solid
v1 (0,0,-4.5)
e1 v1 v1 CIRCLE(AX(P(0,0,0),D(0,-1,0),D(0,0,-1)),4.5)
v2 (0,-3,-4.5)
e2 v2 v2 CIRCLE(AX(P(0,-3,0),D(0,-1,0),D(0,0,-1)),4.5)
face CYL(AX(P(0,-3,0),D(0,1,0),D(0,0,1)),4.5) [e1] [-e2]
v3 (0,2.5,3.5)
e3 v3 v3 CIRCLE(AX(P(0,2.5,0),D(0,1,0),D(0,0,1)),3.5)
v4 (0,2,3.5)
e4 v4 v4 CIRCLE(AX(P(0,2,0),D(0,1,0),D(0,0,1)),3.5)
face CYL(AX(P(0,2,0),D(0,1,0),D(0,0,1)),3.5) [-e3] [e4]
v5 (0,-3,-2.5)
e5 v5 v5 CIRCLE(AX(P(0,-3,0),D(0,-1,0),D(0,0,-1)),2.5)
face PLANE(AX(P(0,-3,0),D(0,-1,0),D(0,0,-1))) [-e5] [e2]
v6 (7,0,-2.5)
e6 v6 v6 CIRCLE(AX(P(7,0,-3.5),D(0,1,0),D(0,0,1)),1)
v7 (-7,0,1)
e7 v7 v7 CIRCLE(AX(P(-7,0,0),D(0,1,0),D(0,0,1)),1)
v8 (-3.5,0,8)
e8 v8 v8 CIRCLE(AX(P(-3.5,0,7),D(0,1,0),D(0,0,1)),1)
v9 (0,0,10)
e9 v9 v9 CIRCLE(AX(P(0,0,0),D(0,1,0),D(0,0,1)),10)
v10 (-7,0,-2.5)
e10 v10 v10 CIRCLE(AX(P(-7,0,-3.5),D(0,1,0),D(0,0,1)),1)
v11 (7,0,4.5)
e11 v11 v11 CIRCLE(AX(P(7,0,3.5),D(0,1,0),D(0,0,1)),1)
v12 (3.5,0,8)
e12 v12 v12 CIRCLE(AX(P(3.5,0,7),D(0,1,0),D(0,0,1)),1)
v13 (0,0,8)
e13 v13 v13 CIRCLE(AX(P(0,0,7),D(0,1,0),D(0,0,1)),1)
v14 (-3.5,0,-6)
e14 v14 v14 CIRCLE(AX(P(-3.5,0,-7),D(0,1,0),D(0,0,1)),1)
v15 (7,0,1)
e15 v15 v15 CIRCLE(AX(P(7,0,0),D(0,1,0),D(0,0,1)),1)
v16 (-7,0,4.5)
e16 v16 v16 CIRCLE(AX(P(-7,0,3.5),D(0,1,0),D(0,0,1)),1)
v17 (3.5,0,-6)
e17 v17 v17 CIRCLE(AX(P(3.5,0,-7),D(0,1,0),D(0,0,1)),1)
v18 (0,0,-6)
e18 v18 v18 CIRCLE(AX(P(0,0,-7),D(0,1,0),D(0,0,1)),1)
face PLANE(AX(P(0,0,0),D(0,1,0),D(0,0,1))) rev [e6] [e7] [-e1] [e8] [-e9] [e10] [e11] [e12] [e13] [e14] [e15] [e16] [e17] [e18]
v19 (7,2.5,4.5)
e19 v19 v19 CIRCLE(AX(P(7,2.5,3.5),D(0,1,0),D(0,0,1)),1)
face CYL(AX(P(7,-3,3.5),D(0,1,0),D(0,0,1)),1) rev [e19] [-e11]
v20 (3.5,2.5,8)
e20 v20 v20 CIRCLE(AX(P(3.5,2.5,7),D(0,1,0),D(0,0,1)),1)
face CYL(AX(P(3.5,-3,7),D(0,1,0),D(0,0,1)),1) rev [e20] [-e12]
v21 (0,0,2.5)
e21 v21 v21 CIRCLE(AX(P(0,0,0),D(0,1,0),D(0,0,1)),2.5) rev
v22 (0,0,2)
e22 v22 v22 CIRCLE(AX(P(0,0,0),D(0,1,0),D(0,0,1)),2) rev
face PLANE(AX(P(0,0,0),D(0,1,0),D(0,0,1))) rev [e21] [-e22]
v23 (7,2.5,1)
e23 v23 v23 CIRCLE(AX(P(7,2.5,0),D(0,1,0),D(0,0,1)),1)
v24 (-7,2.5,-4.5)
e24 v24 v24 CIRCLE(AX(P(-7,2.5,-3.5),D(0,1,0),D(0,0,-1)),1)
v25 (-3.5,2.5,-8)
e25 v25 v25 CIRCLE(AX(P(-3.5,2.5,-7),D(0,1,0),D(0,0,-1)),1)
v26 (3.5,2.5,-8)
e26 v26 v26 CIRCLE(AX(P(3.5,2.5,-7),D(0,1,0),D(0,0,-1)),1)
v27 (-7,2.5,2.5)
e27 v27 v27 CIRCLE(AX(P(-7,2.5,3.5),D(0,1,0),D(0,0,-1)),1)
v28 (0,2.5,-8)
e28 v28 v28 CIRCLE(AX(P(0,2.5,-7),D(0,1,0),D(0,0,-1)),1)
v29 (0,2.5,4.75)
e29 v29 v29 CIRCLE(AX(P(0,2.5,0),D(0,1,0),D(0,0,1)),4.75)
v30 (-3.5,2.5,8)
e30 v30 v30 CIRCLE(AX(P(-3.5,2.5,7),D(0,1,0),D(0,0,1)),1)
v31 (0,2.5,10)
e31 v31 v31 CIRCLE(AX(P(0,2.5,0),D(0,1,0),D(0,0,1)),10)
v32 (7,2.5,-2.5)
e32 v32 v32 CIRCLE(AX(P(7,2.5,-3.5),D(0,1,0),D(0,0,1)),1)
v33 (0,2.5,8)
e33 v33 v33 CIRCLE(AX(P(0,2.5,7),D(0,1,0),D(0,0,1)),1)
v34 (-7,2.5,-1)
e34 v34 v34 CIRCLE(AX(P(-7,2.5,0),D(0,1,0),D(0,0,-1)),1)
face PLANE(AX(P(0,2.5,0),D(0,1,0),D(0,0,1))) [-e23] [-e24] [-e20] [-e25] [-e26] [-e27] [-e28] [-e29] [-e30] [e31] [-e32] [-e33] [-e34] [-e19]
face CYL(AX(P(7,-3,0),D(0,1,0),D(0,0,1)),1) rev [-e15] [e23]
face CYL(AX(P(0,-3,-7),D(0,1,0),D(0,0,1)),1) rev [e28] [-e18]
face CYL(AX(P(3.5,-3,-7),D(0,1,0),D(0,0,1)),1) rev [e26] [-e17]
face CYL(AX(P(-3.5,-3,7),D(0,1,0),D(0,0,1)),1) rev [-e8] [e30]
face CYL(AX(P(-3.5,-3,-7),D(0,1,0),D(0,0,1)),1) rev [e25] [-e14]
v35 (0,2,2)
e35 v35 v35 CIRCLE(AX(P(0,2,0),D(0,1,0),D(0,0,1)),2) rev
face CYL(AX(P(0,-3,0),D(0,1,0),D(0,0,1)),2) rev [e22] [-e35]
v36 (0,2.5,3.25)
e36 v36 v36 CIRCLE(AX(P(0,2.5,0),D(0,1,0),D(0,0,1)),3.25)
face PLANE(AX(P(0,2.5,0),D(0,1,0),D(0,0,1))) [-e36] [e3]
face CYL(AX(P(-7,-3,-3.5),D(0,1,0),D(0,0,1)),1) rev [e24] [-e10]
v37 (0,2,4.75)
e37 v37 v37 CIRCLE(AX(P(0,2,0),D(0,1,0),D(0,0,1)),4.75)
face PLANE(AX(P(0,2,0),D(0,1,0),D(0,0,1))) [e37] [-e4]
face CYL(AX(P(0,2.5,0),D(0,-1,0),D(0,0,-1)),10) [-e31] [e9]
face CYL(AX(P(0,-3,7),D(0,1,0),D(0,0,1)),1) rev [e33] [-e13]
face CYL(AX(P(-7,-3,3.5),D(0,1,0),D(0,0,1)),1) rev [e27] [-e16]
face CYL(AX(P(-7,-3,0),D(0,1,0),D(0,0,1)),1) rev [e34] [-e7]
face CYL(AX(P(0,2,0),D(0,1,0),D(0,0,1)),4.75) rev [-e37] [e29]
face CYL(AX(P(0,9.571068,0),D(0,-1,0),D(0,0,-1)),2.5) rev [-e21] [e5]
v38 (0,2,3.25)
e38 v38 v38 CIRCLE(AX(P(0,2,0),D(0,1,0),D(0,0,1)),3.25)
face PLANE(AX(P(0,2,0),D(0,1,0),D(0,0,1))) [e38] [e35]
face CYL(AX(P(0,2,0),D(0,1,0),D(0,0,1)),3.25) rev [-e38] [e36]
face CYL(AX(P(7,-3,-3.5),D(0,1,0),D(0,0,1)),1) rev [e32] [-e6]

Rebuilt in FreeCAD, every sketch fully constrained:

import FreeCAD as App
import Part
import Sketcher
from FreeCAD import Vector
Q = App.Units.Quantity

doc = App.newDocument("Part")
params = doc.addObject("Spreadsheet::Sheet", "Params")
for row, (alias, value) in enumerate([
    ("sketch1_diameter", "20 mm"),
    ("pad1_length", "2.5 mm"),
    ("sketch2_diameter", "9 mm"),
    ("pad2_length", "3 mm"),
    ("sketch3_diameter", "4 mm"),
    ("sketch4_diameter", "5 mm"),
    ("pocket2_length", "3 mm"),
    ("sketch5_diameter", "7 mm"),
    ("sketch5_diameter2", "4 mm"),
    ("sketch5_diameter3", "9.5 mm"),
    ("sketch5_diameter4", "6.5 mm"),
    ("pocket3_length", "0.5 mm"),
    ("sketch6_diameter", "2 mm"),
], start=1):
    params.set(f"A{row}", alias)
    params.set(f"B{row}", "=" + value)
    params.setAlias(f"B{row}", alias)

body = doc.addObject("PartDesign::Body", "Body")

# Sketch on XZ plane
sketch1 = body.newObject("Sketcher::SketchObject", "Sketch")
sketch1.AttachmentSupport = (doc.getObject("XZ_Plane"), [""])
sketch1.MapMode = "FlatFace"
sketch1.addGeometry(Part.Circle(Vector(0, 0, 0), Vector(0, 0, 1), 10), False)
sketch1.addConstraint(Sketcher.Constraint("Coincident", 0, 3, -1, 1))
sketch1.addConstraint(Sketcher.Constraint("Diameter", 0, Q("20 mm")))
sketch1.setExpression("Constraints[1]", "Params.sketch1_diameter")
pad1 = body.newObject("PartDesign::Pad", "Pad")
pad1.Profile = sketch1
pad1.setExpression("Length", "Params.pad1_length")
pad1.Reversed = True

# Sketch on XZ plane
sketch2 = body.newObject("Sketcher::SketchObject", "Sketch001")
sketch2.AttachmentSupport = (doc.getObject("XZ_Plane"), [""])
sketch2.MapMode = "FlatFace"
sketch2.addGeometry(Part.Circle(Vector(0, 0, 0), Vector(0, 0, 1), 4.5), False)
sketch2.addConstraint(Sketcher.Constraint("Coincident", 0, 3, -1, 1))
sketch2.addConstraint(Sketcher.Constraint("Diameter", 0, Q("9 mm")))
sketch2.setExpression("Constraints[1]", "Params.sketch2_diameter")
pad2 = body.newObject("PartDesign::Pad", "Pad001")
pad2.Profile = sketch2
pad2.setExpression("Length", "Params.pad2_length")

# Sketch on XZ plane
sketch3 = body.newObject("Sketcher::SketchObject", "Sketch002")
sketch3.AttachmentSupport = (doc.getObject("XZ_Plane"), [""])
sketch3.MapMode = "FlatFace"
sketch3.AttachmentOffset = App.Placement(Vector(0, 0, -2.5), App.Rotation())
sketch3.addGeometry(Part.Circle(Vector(0, 0, 0), Vector(0, 0, 1), 2), False)
sketch3.addConstraint(Sketcher.Constraint("Coincident", 0, 3, -1, 1))
sketch3.addConstraint(Sketcher.Constraint("Diameter", 0, Q("4 mm")))
sketch3.setExpression("Constraints[1]", "Params.sketch3_diameter")
pocket1 = body.newObject("PartDesign::Pocket", "Pocket")
pocket1.Profile = sketch3
pocket1.Type = "ThroughAll"
pocket1.Reversed = True

# Sketch on XZ plane
sketch4 = body.newObject("Sketcher::SketchObject", "Sketch003")
sketch4.AttachmentSupport = (doc.getObject("XZ_Plane"), [""])
sketch4.MapMode = "FlatFace"
sketch4.AttachmentOffset = App.Placement(Vector(0, 0, 3), App.Rotation())
sketch4.addGeometry(Part.Circle(Vector(0, 0, 0), Vector(0, 0, 1), 2.5), False)
sketch4.addConstraint(Sketcher.Constraint("Coincident", 0, 3, -1, 1))
sketch4.addConstraint(Sketcher.Constraint("Diameter", 0, Q("5 mm")))
sketch4.setExpression("Constraints[1]", "Params.sketch4_diameter")
pocket2 = body.newObject("PartDesign::Pocket", "Pocket001")
pocket2.Profile = sketch4
pocket2.setExpression("Length", "Params.pocket2_length")

# Sketch on XZ plane
sketch5 = body.newObject("Sketcher::SketchObject", "Sketch004")
sketch5.AttachmentSupport = (doc.getObject("XZ_Plane"), [""])
sketch5.MapMode = "FlatFace"
sketch5.AttachmentOffset = App.Placement(Vector(0, 0, -2.5), App.Rotation())
sketch5.addGeometry(Part.Circle(Vector(0, 0, 0), Vector(0, 0, 1), 4.8), False)
sketch5.addGeometry(Part.Circle(Vector(0, 0, 0), Vector(0, 0, 1), 3.5), False)
sketch5.addGeometry(Part.Circle(Vector(0, 0, 0), Vector(0, 0, 1), 3.2), False)
sketch5.addGeometry(Part.Circle(Vector(0, 0, 0), Vector(0, 0, 1), 2), False)
sketch5.addConstraint(Sketcher.Constraint("Coincident", 0, 3, -1, 1))
sketch5.addConstraint(Sketcher.Constraint("Coincident", 1, 3, -1, 1))
sketch5.addConstraint(Sketcher.Constraint("Coincident", 2, 3, -1, 1))
sketch5.addConstraint(Sketcher.Constraint("Coincident", 3, 3, -1, 1))
sketch5.addConstraint(Sketcher.Constraint("Diameter", 1, Q("7 mm")))
sketch5.addConstraint(Sketcher.Constraint("Diameter", 3, Q("4 mm")))
sketch5.addConstraint(Sketcher.Constraint("Diameter", 0, Q("9.5 mm")))
sketch5.addConstraint(Sketcher.Constraint("Diameter", 2, Q("6.5 mm")))
sketch5.setExpression("Constraints[4]", "Params.sketch5_diameter")
sketch5.setExpression("Constraints[5]", "Params.sketch5_diameter2")
sketch5.setExpression("Constraints[6]", "Params.sketch5_diameter3")
sketch5.setExpression("Constraints[7]", "Params.sketch5_diameter4")
pocket3 = body.newObject("PartDesign::Pocket", "Pocket002")
pocket3.Profile = sketch5
pocket3.setExpression("Length", "Params.pocket3_length")
pocket3.Reversed = True

# Sketch on XZ plane
sketch6 = body.newObject("Sketcher::SketchObject", "Sketch005")
sketch6.AttachmentSupport = (doc.getObject("XZ_Plane"), [""])
sketch6.MapMode = "FlatFace"
sketch6.AttachmentOffset = App.Placement(Vector(0, 0, -2.5), App.Rotation())
sketch6.addGeometry(Part.Circle(Vector(0, 7, 0), Vector(0, 0, 1), 1), False)
sketch6.addGeometry(Part.Circle(Vector(3.5, 7, 0), Vector(0, 0, 1), 1), False)
sketch6.addGeometry(Part.Circle(Vector(-3.5, 7, 0), Vector(0, 0, 1), 1), False)
sketch6.addGeometry(Part.Circle(Vector(7, -3.5, 0), Vector(0, 0, 1), 1), False)
sketch6.addGeometry(Part.Circle(Vector(7, 0, 0), Vector(0, 0, 1), 1), False)
sketch6.addGeometry(Part.Circle(Vector(7, 3.5, 0), Vector(0, 0, 1), 1), False)
sketch6.addGeometry(Part.Circle(Vector(-3.5, -7, 0), Vector(0, 0, 1), 1), False)
sketch6.addGeometry(Part.Circle(Vector(0, -7, 0), Vector(0, 0, 1), 1), False)
sketch6.addGeometry(Part.Circle(Vector(3.5, -7, 0), Vector(0, 0, 1), 1), False)
sketch6.addGeometry(Part.Circle(Vector(-7, -3.5, 0), Vector(0, 0, 1), 1), False)
sketch6.addGeometry(Part.Circle(Vector(-7, 0, 0), Vector(0, 0, 1), 1), False)
sketch6.addGeometry(Part.Circle(Vector(-7, 3.5, 0), Vector(0, 0, 1), 1), False)
sketch6.addConstraint(Sketcher.Constraint("Equal", 0, 1))
sketch6.addConstraint(Sketcher.Constraint("Equal", 1, 2))
sketch6.addConstraint(Sketcher.Constraint("Equal", 2, 3))
sketch6.addConstraint(Sketcher.Constraint("Equal", 3, 4))
sketch6.addConstraint(Sketcher.Constraint("Equal", 4, 5))
sketch6.addConstraint(Sketcher.Constraint("Equal", 5, 6))
sketch6.addConstraint(Sketcher.Constraint("Equal", 6, 7))
sketch6.addConstraint(Sketcher.Constraint("Equal", 7, 8))
sketch6.addConstraint(Sketcher.Constraint("Equal", 8, 9))
sketch6.addConstraint(Sketcher.Constraint("Equal", 9, 10))
sketch6.addConstraint(Sketcher.Constraint("Equal", 10, 11))
sketch6.addConstraint(Sketcher.Constraint("Symmetric", 1, 3, 6, 3, -1, 1))
sketch6.addConstraint(Sketcher.Constraint("Symmetric", 0, 3, 7, 3, -1, 1))
sketch6.addConstraint(Sketcher.Constraint("Symmetric", 2, 3, 8, 3, -1, 1))
sketch6.addConstraint(Sketcher.Constraint("Symmetric", 5, 3, 9, 3, -1, 1))
sketch6.addConstraint(Sketcher.Constraint("Symmetric", 4, 3, 10, 3, -1, 1))
sketch6.addConstraint(Sketcher.Constraint("Symmetric", 3, 3, 11, 3, -1, 1))
sketch6.addConstraint(Sketcher.Constraint("Symmetric", 1, 3, 2, 3, -2))
sketch6.addConstraint(Sketcher.Constraint("Symmetric", 3, 3, 9, 3, -2))
sketch6.addConstraint(Sketcher.Constraint("PointOnObject", 0, 3, -2))
sketch6.addConstraint(Sketcher.Constraint("PointOnObject", 4, 3, -1))
sketch6.addConstraint(Sketcher.Constraint("Horizontal", 0, 3, 1, 3))
sketch6.addConstraint(Sketcher.Constraint("Vertical", 3, 3, 4, 3))
sketch6.addConstraint(Sketcher.Constraint("Diameter", 0, Q("2 mm")))
sketch6.addConstraint(Sketcher.Constraint("DistanceY", -1, 1, 0, 3, Q("7 mm")))
sketch6.addConstraint(Sketcher.Constraint("DistanceX", -1, 1, 3, 3, Q("7 mm")))
sketch6.addConstraint(Sketcher.Constraint("DistanceX", 2, 3, 1, 3, Q("7 mm")))
sketch6.addConstraint(Sketcher.Constraint("DistanceY", 3, 3, 5, 3, Q("7 mm")))
sketch6.setExpression("Constraints[23]", "Params.sketch6_diameter")
pocket4 = body.newObject("PartDesign::Pocket", "Pocket003")
pocket4.Profile = sketch6
pocket4.Type = "ThroughAll"
pocket4.Reversed = True

doc.recompute()
